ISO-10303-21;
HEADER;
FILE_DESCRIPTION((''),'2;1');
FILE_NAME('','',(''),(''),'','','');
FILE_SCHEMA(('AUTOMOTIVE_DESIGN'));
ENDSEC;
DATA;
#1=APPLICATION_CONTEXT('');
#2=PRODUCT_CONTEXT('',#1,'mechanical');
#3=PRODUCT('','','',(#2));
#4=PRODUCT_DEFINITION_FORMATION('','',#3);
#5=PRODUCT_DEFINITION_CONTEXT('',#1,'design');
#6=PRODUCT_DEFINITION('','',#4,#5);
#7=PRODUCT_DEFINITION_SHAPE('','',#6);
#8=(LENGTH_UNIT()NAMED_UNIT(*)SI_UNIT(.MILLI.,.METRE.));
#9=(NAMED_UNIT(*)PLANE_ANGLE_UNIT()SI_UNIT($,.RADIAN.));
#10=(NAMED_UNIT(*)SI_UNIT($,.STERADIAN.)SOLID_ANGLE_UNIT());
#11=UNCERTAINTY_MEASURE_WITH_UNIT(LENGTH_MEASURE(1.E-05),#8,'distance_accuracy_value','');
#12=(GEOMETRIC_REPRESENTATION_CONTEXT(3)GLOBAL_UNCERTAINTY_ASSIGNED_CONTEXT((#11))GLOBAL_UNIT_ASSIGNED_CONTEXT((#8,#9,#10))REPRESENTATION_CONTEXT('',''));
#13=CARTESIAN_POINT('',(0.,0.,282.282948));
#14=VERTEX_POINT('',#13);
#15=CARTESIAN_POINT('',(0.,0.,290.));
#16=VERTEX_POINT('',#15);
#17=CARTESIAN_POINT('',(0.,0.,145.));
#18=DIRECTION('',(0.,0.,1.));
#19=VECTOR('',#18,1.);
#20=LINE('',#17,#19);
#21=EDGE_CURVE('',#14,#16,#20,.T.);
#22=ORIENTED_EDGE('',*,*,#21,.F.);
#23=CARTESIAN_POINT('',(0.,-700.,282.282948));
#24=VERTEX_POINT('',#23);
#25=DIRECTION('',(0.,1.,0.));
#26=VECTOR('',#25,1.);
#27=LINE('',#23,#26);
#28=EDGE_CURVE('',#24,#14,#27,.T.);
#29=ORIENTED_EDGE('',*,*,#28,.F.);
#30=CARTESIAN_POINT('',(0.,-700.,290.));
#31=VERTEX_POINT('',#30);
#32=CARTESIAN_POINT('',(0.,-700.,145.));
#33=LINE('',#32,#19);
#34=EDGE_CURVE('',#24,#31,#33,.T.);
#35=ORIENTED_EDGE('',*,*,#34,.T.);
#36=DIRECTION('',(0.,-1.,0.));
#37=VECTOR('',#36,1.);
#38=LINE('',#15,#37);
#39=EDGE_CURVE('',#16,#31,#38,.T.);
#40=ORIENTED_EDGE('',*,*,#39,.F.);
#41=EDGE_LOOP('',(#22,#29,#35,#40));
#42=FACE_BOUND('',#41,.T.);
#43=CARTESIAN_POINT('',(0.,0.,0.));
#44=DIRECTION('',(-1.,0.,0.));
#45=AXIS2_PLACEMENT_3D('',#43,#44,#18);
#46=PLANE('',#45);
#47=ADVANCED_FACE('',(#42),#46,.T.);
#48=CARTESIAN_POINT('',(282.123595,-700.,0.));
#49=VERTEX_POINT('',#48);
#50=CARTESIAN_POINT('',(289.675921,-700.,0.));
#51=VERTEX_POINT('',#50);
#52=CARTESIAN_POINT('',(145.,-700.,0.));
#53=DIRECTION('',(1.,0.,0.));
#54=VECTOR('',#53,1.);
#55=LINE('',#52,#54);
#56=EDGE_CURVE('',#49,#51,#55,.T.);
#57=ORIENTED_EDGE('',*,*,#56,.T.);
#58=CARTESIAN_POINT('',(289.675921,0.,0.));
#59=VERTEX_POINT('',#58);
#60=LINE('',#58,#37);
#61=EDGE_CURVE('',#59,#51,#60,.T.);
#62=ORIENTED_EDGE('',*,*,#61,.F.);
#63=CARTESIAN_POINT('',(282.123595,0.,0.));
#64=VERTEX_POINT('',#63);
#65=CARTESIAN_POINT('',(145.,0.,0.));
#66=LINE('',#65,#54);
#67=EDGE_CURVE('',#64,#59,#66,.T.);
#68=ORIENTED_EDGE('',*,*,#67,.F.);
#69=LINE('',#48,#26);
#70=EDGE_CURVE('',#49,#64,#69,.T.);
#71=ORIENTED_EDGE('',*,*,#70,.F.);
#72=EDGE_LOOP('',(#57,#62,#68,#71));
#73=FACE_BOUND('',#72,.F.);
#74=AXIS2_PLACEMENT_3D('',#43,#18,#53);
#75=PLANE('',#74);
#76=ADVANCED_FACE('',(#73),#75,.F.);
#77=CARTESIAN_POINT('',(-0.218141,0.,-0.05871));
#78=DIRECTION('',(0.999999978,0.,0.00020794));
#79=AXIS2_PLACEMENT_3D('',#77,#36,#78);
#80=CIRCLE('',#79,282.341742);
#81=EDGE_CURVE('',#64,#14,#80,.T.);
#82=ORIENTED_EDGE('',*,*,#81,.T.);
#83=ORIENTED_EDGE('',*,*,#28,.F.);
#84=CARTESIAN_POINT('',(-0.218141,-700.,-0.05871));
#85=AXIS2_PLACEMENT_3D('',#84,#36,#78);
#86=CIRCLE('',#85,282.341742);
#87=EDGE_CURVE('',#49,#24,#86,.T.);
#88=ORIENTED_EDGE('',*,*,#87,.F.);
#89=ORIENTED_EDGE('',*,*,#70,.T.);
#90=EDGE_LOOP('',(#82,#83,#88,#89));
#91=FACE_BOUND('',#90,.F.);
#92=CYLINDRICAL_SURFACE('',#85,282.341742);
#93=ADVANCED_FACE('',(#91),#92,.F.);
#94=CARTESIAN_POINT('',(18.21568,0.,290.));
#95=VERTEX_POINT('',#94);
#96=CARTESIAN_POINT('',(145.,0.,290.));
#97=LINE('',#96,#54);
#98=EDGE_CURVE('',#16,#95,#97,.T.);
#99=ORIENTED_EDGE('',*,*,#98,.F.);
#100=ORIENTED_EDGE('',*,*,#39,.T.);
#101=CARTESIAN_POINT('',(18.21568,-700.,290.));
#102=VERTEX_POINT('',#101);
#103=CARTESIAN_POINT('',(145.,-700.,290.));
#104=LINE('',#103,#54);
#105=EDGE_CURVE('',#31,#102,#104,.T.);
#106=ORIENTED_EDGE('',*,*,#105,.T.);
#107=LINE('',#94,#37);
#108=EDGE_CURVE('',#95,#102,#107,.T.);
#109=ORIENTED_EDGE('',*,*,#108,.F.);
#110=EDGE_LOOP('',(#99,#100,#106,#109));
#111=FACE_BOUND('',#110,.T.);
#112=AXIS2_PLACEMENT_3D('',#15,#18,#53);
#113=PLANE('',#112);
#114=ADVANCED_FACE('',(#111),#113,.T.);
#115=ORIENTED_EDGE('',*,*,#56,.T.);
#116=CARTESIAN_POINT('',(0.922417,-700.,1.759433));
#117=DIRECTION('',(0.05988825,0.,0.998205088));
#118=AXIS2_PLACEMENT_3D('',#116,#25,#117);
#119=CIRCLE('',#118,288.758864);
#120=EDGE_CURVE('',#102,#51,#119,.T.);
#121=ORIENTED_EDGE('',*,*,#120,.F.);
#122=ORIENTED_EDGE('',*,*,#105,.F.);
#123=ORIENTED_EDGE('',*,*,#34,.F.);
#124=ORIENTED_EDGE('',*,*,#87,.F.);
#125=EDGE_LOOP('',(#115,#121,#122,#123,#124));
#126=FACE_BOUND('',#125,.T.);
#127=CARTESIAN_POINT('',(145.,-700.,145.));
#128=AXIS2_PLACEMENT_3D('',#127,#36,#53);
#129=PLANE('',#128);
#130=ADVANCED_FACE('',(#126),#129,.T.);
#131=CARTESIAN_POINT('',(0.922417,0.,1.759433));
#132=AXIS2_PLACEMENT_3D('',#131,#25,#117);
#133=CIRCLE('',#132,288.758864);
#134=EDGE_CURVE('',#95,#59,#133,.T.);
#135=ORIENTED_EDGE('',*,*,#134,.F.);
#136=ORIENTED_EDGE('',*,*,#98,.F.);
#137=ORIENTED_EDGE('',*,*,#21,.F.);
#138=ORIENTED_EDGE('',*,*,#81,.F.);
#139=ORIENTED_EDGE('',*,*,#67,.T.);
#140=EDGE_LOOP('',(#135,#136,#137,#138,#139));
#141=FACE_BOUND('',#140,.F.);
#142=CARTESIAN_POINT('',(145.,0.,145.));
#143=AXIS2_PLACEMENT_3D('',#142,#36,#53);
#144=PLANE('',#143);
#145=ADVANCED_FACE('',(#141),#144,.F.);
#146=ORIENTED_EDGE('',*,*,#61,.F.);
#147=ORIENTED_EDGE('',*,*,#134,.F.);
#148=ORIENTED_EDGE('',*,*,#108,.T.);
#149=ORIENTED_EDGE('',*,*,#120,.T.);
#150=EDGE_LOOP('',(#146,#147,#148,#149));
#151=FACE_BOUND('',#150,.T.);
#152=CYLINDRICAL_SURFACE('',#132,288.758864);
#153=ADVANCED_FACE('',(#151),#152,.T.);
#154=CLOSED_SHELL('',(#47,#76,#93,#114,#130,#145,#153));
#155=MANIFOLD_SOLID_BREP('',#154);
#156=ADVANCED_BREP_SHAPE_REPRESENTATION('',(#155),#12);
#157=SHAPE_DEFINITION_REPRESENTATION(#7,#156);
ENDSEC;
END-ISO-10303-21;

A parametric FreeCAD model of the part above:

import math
import FreeCAD as App
import Part
import Sketcher

V = App.Vector

doc = App.newDocument("Part")
body = doc.addObject("PartDesign::Body", "Body")

# Sketch on XZ plane
sketch1 = body.newObject("Sketcher::SketchObject", "Sketch")
sketch1.AttachmentSupport = (doc.getObject("XZ_Plane"), [""])
sketch1.MapMode = "FlatFace"
sketch1.addGeometry([
    Part.LineSegment(V(0, 290, 0), V(0, 0, 0)),
    Part.LineSegment(V(0, 0, 0), V(290, 0, 0)),
    Part.LineSegment(V(290, 0, 0), V(290, 290, 0)),
    Part.LineSegment(V(290, 290, 0), V(0, 290, 0)),
], False)
sketch1.addConstraint([
    Sketcher.Constraint("Coincident", 0, 2, 1, 1),
    Sketcher.Constraint("Coincident", 1, 2, 2, 1),
    Sketcher.Constraint("Coincident", 2, 2, 3, 1),
    Sketcher.Constraint("Coincident", 3, 2, 0, 1),
    Sketcher.Constraint("Vertical", 0),
    Sketcher.Constraint("Horizontal", 1),
    Sketcher.Constraint("Vertical", 2),
    Sketcher.Constraint("Horizontal", 3),
    Sketcher.Constraint("Coincident", 0, 2, -1, 1),
    Sketcher.Constraint("Equal", 3, 0),
    Sketcher.Constraint("DistanceX", 1, 1, 1, 2, 290.0),
])
pad1 = body.newObject("PartDesign::Pad", "Pad")
pad1.Profile = sketch1
pad1.Length = 700

# Sketch on XZ plane
sketch2 = body.newObject("Sketcher::SketchObject", "Sketch001")
sketch2.AttachmentSupport = (doc.getObject("XZ_Plane"), [""])
sketch2.MapMode = "FlatFace"
sketch2.addGeometry([
    Part.ArcOfCircle(Part.Circle(V(0.92, 1.76, 0), V(0, 0, 1), 288.76), math.radians(0), math.radians(87)),
    Part.LineSegment(V(289.68, 0, 0), V(290, 0, 0)),
    Part.LineSegment(V(290, 0, 0), V(290, 290, 0)),
    Part.LineSegment(V(290, 290, 0), V(18.22, 290, 0)),
], False)
sketch2.addConstraint([
    Sketcher.Constraint("Coincident", 0, 1, 1, 1),
    Sketcher.Constraint("Coincident", 1, 2, 2, 1),
    Sketcher.Constraint("Coincident", 2, 2, 3, 1),
    Sketcher.Constraint("Coincident", 3, 2, 0, 2),
    Sketcher.Constraint("Horizontal", 1),
    Sketcher.Constraint("Vertical", 2),
    Sketcher.Constraint("Horizontal", 3),
    Sketcher.Constraint("PointOnObject", 1, 2, -1),
    Sketcher.Constraint("DistanceY", 2, 1, 2, 2, 290.0),
    Sketcher.Constraint("DistanceX", -1, 1, 1, 2, 290.0),
    Sketcher.Constraint("Radius", 0, 288.758864),
    Sketcher.Constraint("DistanceX", 1, 1, 1, 2, 0.324079),
    Sketcher.Constraint("DistanceX", 3, 2, 3, 1, 271.78432),
])
pocket1 = body.newObject("PartDesign::Pocket", "Pocket")
pocket1.Profile = sketch2
pocket1.Length = 795
pocket1.Reversed = True

# Sketch on XZ plane
sketch3 = body.newObject("Sketcher::SketchObject", "Sketch002")
sketch3.AttachmentSupport = (doc.getObject("XZ_Plane"), [""])
sketch3.MapMode = "FlatFace"
sketch3.AttachmentOffset = App.Placement(V(0, 0, 700), App.Rotation())
sketch3.addGeometry([
    Part.LineSegment(V(0, 0, 0), V(282, 0, 0)),
    Part.ArcOfCircle(Part.Circle(V(0, 0, 0), V(0, 0, 1), 282), math.radians(0), math.radians(90)),
    Part.LineSegment(V(0, 282, 0), V(0, 0, 0)),
], False)
sketch3.addConstraint([
    Sketcher.Constraint("Coincident", 0, 2, 1, 1),
    Sketcher.Constraint("Coincident", 1, 2, 2, 1),
    Sketcher.Constraint("Coincident", 2, 2, 0, 1),
    Sketcher.Constraint("Horizontal", 0),
    Sketcher.Constraint("Vertical", 2),
    Sketcher.Constraint("Coincident", 2, 2, -1, 1),
    Sketcher.Constraint("Radius", 1, 282.341742),
    Sketcher.Constraint("DistanceX", 0, 1, 0, 2, 282.123595),
    Sketcher.Constraint("DistanceY", 2, 2, 2, 1, 282.282948),
])
pocket2 = body.newObject("PartDesign::Pocket", "Pocket001")
pocket2.Profile = sketch3
pocket2.Length = 770

doc.recompute()
